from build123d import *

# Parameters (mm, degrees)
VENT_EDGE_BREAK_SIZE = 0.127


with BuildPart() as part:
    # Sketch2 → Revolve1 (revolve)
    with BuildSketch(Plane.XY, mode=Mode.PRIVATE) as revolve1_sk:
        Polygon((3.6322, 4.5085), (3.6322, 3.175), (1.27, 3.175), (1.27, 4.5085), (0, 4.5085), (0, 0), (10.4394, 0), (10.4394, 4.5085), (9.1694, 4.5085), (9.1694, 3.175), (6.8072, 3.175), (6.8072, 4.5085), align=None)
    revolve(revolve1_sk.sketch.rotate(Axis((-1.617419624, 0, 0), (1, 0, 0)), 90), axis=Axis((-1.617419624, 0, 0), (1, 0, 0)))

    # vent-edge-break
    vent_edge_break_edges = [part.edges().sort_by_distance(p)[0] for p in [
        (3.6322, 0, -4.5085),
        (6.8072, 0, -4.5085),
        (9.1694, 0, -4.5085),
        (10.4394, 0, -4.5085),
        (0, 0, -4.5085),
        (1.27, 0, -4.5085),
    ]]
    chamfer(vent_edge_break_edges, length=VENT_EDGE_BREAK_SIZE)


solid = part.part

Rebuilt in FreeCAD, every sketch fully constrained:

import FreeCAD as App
import Part
import Sketcher

V = App.Vector
Q = App.Units.Quantity


def edges_at(feature, points):
    """Names of the edges that pass closest to the given points."""
    edges = feature.Shape.Edges
    near = lambda p: min(range(len(edges)), key=lambda i: edges[i].distToShape(Part.Vertex(*p))[0])
    return sorted({f"Edge{near(p) + 1}" for p in points})


def add_polygon(sketch, points):
    """Adds a closed chain of lines whose ends are joined by coincident constraints."""
    first, n = sketch.GeometryCount, len(points)
    for a, b in zip(points, points[1:] + points[:1]):
        sketch.addGeometry(Part.LineSegment(App.Vector(*a, 0), App.Vector(*b, 0)), False)
    for i in range(n):
        sketch.addConstraint(Sketcher.Constraint("Coincident", first + i, 2, first + (i + 1) % n, 1))

doc = App.newDocument("Part")
body = doc.addObject("PartDesign::Body", "Body")

# Sketch on XY plane
sketch1 = doc.addObject("Sketcher::SketchObject", "Sketch")
body.addObject(sketch1)
sketch1.AttachmentSupport = (doc.XY_Plane, [""])
sketch1.MapMode = "FlatFace"
add_polygon(sketch1, [(3.6, 4.5), (3.6, 3.2), (1.3, 3.2), (1.3, 4.5), (0, 4.5), (0, 0), (10.4, 0), (10.4, 4.5), (9.2, 4.5), (9.2, 3.2), (6.8, 3.2), (6.8, 4.5)])  # lines 0-11
sketch1.addConstraint(Sketcher.Constraint("Vertical", 0))
sketch1.addConstraint(Sketcher.Constraint("Horizontal", 1))
sketch1.addConstraint(Sketcher.Constraint("Vertical", 2))
sketch1.addConstraint(Sketcher.Constraint("Horizontal", 3))
sketch1.addConstraint(Sketcher.Constraint("Vertical", 4))
sketch1.addConstraint(Sketcher.Constraint("Horizontal", 5))
sketch1.addConstraint(Sketcher.Constraint("Vertical", 6))
sketch1.addConstraint(Sketcher.Constraint("Horizontal", 7))
sketch1.addConstraint(Sketcher.Constraint("Vertical", 8))
sketch1.addConstraint(Sketcher.Constraint("Horizontal", 9))
sketch1.addConstraint(Sketcher.Constraint("Vertical", 10))
sketch1.addConstraint(Sketcher.Constraint("Horizontal", 11))
sketch1.addConstraint(Sketcher.Constraint("Coincident", 4, 2, -1, 1))
sketch1.addConstraint(Sketcher.Constraint("Horizontal", 3, 2, 6, 2))
sketch1.addConstraint(Sketcher.Constraint("Horizontal", 1, 2, 8, 2))
sketch1.addConstraint(Sketcher.Constraint("Horizontal", 7, 2, 10, 2))
sketch1.addConstraint(Sketcher.Constraint("Equal", 3, 7))
sketch1.addConstraint(Sketcher.Constraint("Equal", 1, 9))
sketch1.addConstraint(Sketcher.Constraint("DistanceX", 3, 2, 3, 1, Q("0.05 in")))
sketch1.addConstraint(Sketcher.Constraint("DistanceX", 1, 2, 1, 1, Q("0.093 in")))
sketch1.addConstraint(Sketcher.Constraint("DistanceX", 5, 1, 5, 2, Q("0.411 in")))
sketch1.addConstraint(Sketcher.Constraint("DistanceY", 0, 2, 0, 1, Q("0.0525 in")))
sketch1.addConstraint(Sketcher.Constraint("DistanceY", 4, 2, 4, 1, Q("0.1775 in")))
revolution = doc.addObject("PartDesign::Revolution", "Revolution")
body.addObject(revolution)
revolution.Profile = sketch1
revolution.ReferenceAxis = (sketch1, ["H_Axis"])
revolution.Angle = 360
doc.recompute()

chamfer = doc.addObject("PartDesign::Chamfer", "Chamfer")
body.addObject(chamfer)
chamfer.Base = (revolution, edges_at(revolution, [
    (3.632, 0, -4.508),
    (6.807, 0, -4.508),
    (9.169, 0, -4.508),
    (10.439, 0, -4.508),
    (0, 0, -4.508),
    (1.27, 0, -4.508),
]))
chamfer.Size = Q("0.005 in")

doc.recompute()
